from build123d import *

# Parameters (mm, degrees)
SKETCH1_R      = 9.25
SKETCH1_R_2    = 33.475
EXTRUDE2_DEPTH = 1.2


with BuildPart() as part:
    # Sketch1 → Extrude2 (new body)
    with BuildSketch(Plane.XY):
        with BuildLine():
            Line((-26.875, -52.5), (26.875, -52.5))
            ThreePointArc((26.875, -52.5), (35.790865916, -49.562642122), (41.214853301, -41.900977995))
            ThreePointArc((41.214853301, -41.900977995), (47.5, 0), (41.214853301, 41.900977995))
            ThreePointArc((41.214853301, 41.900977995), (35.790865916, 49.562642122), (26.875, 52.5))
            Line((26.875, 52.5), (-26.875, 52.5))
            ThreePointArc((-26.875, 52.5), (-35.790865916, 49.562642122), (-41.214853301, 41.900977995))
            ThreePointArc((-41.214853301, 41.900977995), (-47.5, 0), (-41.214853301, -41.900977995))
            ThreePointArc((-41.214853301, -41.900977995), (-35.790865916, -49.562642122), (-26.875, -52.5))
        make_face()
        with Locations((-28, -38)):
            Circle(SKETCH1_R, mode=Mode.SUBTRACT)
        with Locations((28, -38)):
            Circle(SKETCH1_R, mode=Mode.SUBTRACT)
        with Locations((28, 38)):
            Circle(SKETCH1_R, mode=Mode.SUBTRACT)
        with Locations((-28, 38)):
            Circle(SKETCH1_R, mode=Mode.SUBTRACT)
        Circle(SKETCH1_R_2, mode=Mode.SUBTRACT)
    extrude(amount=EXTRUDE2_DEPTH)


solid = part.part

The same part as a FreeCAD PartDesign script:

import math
import FreeCAD as App
import Part
import Sketcher

V = App.Vector
Q = App.Units.Quantity

doc = App.newDocument("Part")
params = doc.addObject("Spreadsheet::Sheet", "Params")
for row, (alias, value) in enumerate([
    ("sketch1_radius", "15 mm"),
    ("sketch1_diameter", "18.5 mm"),
    ("sketch1_diameter2", "66.95 mm"),
    ("sketch1_width", "53.75 mm"),
    ("pad1_length", "1.2 mm"),
], start=1):
    params.set(f"A{row}", alias)
    params.set(f"B{row}", "=" + value)
    params.setAlias(f"B{row}", alias)

body = doc.addObject("PartDesign::Body", "Body")

sketch1 = doc.addObject("Sketcher::SketchObject", "Sketch")
body.addObject(sketch1)
sketch1.AttachmentSupport = (doc.XY_Plane, [""])
sketch1.MapMode = "FlatFace"
sketch1.addGeometry(Part.LineSegment(V(-26.875, -52.5, 0), V(26.875, -52.5, 0)), False)
sketch1.addGeometry(Part.ArcOfCircle(Part.Circle(V(26.875, -37.5, 0), V(0, 0, 1), 15), math.radians(-90), math.radians(-17.061531)), False)
sketch1.addGeometry(Part.ArcOfCircle(Part.Circle(V(-95.3125, 0, 0), V(0, 0, 1), 142.8125), math.radians(-17.061531), math.radians(17.061531)), False)
sketch1.addGeometry(Part.ArcOfCircle(Part.Circle(V(26.875, 37.5, 0), V(0, 0, 1), 15), math.radians(17.061531), math.radians(90)), False)
sketch1.addGeometry(Part.LineSegment(V(26.875, 52.5, 0), V(-26.875, 52.5, 0)), False)
sketch1.addGeometry(Part.ArcOfCircle(Part.Circle(V(-26.875, 37.5, 0), V(0, 0, 1), 15), math.radians(90), math.radians(162.938469)), False)
sketch1.addGeometry(Part.ArcOfCircle(Part.Circle(V(95.3125, 0, 0), V(0, 0, 1), 142.8125), math.radians(162.938469), math.radians(197.061531)), False)
sketch1.addGeometry(Part.ArcOfCircle(Part.Circle(V(-26.875, -37.5, 0), V(0, 0, 1), 15), math.radians(-162.938469), math.radians(-90)), False)
sketch1.addGeometry(Part.Circle(V(-28, -38, 0), V(0, 0, 1), 9.25), False)
sketch1.addGeometry(Part.Circle(V(28, -38, 0), V(0, 0, 1), 9.25), False)
sketch1.addGeometry(Part.Circle(V(-28, 38, 0), V(0, 0, 1), 9.25), False)
sketch1.addGeometry(Part.Circle(V(0, 0, 0), V(0, 0, 1), 33.475), False)
sketch1.addGeometry(Part.Circle(V(28, 38, 0), V(0, 0, 1), 9.25), False)
sketch1.addConstraint(Sketcher.Constraint("Tangent", 0, 2, 1, 1))
sketch1.addConstraint(Sketcher.Constraint("Tangent", 1, 2, 2, 1))
sketch1.addConstraint(Sketcher.Constraint("Tangent", 2, 2, 3, 1))
sketch1.addConstraint(Sketcher.Constraint("Tangent", 3, 2, 4, 1))
sketch1.addConstraint(Sketcher.Constraint("Tangent", 4, 2, 5, 1))
sketch1.addConstraint(Sketcher.Constraint("Tangent", 5, 2, 6, 1))
sketch1.addConstraint(Sketcher.Constraint("Tangent", 6, 2, 7, 1))
sketch1.addConstraint(Sketcher.Constraint("Tangent", 7, 2, 0, 1))
sketch1.addConstraint(Sketcher.Constraint("Horizontal", 0))
sketch1.addConstraint(Sketcher.Constraint("Horizontal", 4))
sketch1.addConstraint(Sketcher.Constraint("Coincident", 11, 3, -1, 1))
sketch1.addConstraint(Sketcher.Constraint("Equal", 1, 3))
sketch1.addConstraint(Sketcher.Constraint("Equal", 3, 5))
sketch1.addConstraint(Sketcher.Constraint("Equal", 2, 6))
sketch1.addConstraint(Sketcher.Constraint("Equal", 5, 7))
sketch1.addConstraint(Sketcher.Constraint("Equal", 8, 9))
sketch1.addConstraint(Sketcher.Constraint("Equal", 9, 10))
sketch1.addConstraint(Sketcher.Constraint("Equal", 10, 12))
sketch1.addConstraint(Sketcher.Constraint("Symmetric", 1, 3, 5, 3, -1, 1))
sketch1.addConstraint(Sketcher.Constraint("Symmetric", 9, 3, 10, 3, -1, 1))
sketch1.addConstraint(Sketcher.Constraint("Symmetric", 8, 3, 12, 3, -1, 1))
sketch1.addConstraint(Sketcher.Constraint("Symmetric", 2, 3, 6, 3, -2))
sketch1.addConstraint(Sketcher.Constraint("Symmetric", 8, 3, 9, 3, -2))
sketch1.addConstraint(Sketcher.Constraint("Radius", 1, Q("15 mm")))
sketch1.addConstraint(Sketcher.Constraint("Diameter", 8, Q("18.5 mm")))
sketch1.addConstraint(Sketcher.Constraint("Diameter", 11, Q("66.95 mm")))
sketch1.addConstraint(Sketcher.Constraint("DistanceX", 8, 3, -1, 1, Q("28 mm")))
sketch1.addConstraint(Sketcher.Constraint("DistanceY", 8, 3, -1, 1, Q("38 mm")))
sketch1.addConstraint(Sketcher.Constraint("DistanceY", 1, 3, 3, 3, Q("75 mm")))
sketch1.addConstraint(Sketcher.Constraint("DistanceX", 0, 1, 0, 2, Q("53.75 mm")))
sketch1.addConstraint(Sketcher.Constraint("Radius", 2, Q("142.8125 mm")))
sketch1.setExpression("Constraints[23]", "Params.sketch1_radius")
sketch1.setExpression("Constraints[24]", "Params.sketch1_diameter")
sketch1.setExpression("Constraints[25]", "Params.sketch1_diameter2")
sketch1.setExpression("Constraints[29]", "Params.sketch1_width")
pad1 = doc.addObject("PartDesign::Pad", "Pad")
body.addObject(pad1)
pad1.Profile = sketch1
pad1.setExpression("Length", "Params.pad1_length")

doc.recompute()
